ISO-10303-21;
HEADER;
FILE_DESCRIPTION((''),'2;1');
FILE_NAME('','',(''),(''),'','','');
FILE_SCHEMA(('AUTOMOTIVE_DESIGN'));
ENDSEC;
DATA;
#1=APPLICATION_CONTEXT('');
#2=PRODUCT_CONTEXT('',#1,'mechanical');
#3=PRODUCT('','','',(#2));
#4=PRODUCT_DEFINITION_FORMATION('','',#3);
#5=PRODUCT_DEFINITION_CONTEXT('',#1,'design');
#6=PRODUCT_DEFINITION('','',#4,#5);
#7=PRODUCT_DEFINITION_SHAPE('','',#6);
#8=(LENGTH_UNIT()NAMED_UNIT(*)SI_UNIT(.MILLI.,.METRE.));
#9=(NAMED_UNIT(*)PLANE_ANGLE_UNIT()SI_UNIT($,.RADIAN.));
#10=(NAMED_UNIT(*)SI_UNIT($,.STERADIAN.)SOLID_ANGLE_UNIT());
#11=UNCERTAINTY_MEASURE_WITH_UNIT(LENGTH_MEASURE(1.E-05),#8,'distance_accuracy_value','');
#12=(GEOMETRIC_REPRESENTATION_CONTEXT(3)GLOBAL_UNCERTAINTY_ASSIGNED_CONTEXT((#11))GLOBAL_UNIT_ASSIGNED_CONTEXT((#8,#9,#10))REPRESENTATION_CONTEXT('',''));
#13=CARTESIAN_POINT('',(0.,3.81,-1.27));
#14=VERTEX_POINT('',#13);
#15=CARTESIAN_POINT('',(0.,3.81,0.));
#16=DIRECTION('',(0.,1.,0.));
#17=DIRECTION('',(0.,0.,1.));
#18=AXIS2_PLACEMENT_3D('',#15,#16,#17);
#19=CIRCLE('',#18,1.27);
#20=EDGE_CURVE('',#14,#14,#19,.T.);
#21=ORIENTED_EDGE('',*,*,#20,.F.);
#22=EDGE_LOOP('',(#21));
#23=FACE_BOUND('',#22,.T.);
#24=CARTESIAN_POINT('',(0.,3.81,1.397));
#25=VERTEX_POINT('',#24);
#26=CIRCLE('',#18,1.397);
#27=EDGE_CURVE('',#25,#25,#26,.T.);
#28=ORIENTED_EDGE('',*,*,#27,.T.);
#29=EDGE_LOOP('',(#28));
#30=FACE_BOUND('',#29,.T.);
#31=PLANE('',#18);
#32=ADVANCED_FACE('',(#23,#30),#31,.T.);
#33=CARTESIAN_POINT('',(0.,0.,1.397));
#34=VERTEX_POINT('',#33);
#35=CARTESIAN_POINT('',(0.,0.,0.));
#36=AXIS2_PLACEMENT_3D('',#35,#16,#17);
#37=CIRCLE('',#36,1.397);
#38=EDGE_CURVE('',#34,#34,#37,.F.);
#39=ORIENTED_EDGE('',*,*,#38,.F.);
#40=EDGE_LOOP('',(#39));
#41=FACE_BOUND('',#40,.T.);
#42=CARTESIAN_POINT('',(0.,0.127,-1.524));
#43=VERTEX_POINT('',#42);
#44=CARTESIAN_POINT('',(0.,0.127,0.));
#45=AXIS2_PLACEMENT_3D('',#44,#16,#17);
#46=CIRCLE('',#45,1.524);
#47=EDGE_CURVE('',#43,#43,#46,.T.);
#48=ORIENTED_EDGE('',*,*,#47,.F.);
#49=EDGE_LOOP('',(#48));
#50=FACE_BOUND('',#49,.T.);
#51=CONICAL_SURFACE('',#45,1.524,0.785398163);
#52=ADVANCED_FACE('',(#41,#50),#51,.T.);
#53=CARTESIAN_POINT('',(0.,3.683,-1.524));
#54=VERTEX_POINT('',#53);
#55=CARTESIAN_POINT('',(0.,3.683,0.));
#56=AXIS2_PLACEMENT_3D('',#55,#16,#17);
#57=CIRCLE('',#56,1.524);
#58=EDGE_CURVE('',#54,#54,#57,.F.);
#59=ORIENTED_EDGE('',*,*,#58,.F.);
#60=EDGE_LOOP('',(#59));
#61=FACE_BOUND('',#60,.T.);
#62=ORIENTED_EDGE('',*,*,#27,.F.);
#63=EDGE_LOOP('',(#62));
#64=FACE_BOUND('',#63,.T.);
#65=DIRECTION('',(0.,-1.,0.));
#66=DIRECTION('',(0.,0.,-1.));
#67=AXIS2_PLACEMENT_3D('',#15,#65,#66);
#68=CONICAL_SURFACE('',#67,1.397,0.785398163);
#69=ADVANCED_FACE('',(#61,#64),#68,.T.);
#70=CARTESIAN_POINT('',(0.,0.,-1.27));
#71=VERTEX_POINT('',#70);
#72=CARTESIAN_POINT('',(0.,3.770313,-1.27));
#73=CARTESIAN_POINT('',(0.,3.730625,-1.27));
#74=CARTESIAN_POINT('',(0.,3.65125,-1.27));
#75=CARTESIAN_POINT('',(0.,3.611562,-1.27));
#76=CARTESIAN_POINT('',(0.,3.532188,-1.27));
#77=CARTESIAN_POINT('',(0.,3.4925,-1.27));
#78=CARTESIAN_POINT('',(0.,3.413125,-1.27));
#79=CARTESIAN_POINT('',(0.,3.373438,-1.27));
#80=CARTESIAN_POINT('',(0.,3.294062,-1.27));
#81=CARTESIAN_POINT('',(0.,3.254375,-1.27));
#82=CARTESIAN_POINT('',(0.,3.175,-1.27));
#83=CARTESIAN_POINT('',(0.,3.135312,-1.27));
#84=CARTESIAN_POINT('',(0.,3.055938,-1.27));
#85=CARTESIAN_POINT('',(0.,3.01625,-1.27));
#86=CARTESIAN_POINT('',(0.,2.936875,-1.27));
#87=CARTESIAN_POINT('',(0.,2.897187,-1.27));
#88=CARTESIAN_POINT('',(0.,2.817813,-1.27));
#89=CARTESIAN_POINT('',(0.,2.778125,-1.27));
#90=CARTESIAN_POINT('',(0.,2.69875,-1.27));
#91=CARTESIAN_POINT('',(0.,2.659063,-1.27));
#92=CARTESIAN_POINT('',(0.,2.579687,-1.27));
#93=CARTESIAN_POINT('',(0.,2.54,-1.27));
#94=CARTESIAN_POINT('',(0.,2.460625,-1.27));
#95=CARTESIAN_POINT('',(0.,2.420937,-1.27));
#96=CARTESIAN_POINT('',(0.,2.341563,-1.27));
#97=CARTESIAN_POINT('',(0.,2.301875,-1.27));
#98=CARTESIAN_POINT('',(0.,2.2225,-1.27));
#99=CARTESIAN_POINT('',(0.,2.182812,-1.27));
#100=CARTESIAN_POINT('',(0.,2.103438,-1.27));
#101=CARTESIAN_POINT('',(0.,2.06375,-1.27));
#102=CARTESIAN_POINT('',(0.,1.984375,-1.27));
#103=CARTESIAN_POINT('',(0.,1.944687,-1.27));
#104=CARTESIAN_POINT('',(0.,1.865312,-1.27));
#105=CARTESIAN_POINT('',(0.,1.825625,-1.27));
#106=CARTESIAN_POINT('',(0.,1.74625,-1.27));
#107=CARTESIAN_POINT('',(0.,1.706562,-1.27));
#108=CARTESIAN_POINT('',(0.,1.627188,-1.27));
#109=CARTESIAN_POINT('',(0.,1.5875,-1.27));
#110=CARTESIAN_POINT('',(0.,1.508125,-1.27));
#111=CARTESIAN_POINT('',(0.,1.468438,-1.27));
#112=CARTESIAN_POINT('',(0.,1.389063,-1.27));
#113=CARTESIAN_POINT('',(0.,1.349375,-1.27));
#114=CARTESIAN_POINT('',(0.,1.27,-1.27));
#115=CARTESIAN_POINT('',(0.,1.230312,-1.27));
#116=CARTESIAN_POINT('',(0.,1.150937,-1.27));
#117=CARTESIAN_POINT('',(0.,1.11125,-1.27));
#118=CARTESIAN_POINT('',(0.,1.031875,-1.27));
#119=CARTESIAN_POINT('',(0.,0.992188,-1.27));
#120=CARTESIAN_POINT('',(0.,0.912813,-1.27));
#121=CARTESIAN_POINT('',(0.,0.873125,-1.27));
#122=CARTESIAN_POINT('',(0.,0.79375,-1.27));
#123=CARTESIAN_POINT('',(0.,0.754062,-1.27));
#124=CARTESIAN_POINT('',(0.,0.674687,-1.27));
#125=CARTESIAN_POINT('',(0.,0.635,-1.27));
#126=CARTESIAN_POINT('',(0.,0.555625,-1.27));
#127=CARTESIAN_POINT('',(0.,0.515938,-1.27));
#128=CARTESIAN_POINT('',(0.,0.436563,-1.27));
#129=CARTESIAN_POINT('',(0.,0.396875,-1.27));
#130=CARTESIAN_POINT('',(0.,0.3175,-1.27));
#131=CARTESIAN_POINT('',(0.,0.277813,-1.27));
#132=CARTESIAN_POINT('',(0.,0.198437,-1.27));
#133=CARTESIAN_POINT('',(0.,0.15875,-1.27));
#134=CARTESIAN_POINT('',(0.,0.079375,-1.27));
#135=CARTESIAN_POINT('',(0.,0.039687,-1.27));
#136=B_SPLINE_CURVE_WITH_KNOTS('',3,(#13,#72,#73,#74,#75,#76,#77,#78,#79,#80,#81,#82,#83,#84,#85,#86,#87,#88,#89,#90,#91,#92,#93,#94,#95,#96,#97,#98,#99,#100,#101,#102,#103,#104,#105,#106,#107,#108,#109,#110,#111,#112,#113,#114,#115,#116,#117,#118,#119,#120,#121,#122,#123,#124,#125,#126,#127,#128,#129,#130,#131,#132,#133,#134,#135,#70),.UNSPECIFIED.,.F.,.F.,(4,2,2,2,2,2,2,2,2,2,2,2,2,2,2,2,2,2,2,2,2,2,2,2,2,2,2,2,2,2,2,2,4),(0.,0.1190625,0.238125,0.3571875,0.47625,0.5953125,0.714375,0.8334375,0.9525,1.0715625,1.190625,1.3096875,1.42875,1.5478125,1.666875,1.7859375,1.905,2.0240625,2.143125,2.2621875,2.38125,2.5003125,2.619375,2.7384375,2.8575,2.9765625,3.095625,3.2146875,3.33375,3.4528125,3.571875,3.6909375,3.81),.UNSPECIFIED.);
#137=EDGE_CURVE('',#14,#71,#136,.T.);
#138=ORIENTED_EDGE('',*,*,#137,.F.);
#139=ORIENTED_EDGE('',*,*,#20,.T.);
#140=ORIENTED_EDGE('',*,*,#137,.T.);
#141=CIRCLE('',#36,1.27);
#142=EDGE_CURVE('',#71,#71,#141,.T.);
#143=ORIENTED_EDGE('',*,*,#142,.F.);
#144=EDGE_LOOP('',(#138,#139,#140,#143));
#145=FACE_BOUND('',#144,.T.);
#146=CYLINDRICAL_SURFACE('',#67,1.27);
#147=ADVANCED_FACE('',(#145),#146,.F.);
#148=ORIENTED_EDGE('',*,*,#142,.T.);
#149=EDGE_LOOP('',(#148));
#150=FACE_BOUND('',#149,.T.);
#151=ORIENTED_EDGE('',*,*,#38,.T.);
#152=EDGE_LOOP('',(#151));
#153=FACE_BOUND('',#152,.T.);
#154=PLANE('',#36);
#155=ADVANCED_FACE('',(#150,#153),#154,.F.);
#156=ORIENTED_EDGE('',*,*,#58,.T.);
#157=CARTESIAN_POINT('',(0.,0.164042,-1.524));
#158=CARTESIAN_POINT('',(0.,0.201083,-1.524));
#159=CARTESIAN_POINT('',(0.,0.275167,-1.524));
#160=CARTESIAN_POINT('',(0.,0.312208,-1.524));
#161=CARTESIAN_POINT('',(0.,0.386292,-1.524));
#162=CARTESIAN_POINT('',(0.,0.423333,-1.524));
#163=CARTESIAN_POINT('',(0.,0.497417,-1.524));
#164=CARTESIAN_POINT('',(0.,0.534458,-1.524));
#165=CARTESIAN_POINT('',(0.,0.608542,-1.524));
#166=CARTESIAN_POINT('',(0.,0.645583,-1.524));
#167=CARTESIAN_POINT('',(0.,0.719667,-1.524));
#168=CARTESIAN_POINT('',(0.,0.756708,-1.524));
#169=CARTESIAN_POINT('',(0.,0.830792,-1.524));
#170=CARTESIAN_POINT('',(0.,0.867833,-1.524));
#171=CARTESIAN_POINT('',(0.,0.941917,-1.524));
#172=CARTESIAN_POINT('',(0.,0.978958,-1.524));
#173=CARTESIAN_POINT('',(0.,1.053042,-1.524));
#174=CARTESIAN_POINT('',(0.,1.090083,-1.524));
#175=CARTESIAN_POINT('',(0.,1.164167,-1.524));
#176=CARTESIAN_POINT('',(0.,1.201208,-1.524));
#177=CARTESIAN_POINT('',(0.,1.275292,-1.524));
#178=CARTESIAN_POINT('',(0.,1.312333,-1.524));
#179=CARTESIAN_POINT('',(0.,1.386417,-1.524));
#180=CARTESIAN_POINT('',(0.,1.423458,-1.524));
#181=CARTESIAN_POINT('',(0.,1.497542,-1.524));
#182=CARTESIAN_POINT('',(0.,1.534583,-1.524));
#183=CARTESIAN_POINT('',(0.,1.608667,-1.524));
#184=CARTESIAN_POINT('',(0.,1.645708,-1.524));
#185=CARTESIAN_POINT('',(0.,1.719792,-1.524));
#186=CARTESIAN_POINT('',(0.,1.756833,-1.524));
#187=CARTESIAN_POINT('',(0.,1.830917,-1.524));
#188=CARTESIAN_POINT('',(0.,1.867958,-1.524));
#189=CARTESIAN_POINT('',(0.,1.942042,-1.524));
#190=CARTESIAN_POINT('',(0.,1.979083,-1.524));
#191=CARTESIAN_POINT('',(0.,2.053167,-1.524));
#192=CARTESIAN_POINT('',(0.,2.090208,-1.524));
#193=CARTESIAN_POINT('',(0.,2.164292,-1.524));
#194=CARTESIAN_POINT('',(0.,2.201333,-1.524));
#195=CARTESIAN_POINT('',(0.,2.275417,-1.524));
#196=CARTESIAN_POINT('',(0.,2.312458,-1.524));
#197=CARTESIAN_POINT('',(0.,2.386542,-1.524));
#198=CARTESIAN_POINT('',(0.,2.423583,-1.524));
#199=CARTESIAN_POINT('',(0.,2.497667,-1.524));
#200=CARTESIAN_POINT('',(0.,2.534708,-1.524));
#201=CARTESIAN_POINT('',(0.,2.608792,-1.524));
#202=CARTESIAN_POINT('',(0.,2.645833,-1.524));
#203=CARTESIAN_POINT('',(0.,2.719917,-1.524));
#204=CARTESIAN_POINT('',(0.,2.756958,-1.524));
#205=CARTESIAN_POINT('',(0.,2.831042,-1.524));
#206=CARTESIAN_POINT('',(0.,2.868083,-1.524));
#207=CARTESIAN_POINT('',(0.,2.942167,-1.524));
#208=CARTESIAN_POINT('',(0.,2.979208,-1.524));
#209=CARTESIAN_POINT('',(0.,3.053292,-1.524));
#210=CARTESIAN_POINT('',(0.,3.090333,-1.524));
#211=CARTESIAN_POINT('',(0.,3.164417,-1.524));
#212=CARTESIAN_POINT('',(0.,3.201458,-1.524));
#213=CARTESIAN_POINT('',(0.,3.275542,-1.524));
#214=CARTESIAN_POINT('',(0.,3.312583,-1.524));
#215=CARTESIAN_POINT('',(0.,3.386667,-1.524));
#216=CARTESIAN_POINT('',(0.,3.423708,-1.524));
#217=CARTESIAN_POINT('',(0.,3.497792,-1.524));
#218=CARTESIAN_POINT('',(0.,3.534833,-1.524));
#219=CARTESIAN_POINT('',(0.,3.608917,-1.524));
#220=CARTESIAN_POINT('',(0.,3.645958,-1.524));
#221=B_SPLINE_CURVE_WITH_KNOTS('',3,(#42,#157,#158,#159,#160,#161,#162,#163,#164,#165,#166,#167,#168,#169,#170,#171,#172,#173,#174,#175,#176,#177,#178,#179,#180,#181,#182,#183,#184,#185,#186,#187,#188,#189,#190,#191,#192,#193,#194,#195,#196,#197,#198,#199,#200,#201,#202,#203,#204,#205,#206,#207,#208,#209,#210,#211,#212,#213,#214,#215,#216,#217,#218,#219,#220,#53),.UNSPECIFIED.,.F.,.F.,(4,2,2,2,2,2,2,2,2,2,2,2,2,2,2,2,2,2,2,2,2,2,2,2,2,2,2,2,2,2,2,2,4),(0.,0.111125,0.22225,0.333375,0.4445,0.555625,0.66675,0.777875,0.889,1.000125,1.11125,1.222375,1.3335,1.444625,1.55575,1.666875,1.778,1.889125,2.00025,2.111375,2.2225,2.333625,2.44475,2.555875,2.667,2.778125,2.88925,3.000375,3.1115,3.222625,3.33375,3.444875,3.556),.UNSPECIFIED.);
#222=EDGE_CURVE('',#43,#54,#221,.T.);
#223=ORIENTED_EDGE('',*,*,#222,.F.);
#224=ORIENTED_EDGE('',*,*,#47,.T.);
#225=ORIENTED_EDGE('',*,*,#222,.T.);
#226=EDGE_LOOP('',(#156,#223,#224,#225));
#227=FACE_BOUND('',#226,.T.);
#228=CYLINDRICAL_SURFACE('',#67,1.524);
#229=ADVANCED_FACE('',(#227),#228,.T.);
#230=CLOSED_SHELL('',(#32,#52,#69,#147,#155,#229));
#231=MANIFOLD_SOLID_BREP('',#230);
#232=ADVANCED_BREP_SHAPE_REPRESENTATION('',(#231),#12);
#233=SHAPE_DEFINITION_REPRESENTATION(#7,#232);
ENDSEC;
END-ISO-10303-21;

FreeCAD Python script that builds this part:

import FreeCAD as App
import Part
import Sketcher
from FreeCAD import Vector
Q = App.Units.Quantity


def edges_at(feature, points):
    """Names of the edges that pass closest to the given points."""
    edges = feature.Shape.Edges
    near = lambda p: min(range(len(edges)), key=lambda i: edges[i].distToShape(Part.Vertex(*p))[0])
    return sorted({f"Edge{near(p) + 1}" for p in points})

doc = App.newDocument("Part")
body = doc.addObject("PartDesign::Body", "Body")

sketch1 = body.newObject("Sketcher::SketchObject", "Sketch")
sketch1.AttachmentSupport = (doc.getObject("XZ_Plane"), [""])
sketch1.MapMode = "FlatFace"
sketch1.addGeometry(Part.Circle(Vector(0, 0, 0), Vector(0, 0, 1), 1.5), False)
sketch1.addGeometry(Part.Circle(Vector(0, 0, 0), Vector(0, 0, 1), 1.3), False)
sketch1.addConstraint(Sketcher.Constraint("Coincident", 0, 3, -1, 1))
sketch1.addConstraint(Sketcher.Constraint("Coincident", 1, 3, -1, 1))
sketch1.addConstraint(Sketcher.Constraint("Diameter", 1, Q("0.1 in")))
sketch1.addConstraint(Sketcher.Constraint("Diameter", 0, Q("0.12 in")))
pad1 = body.newObject("PartDesign::Pad", "Pad")
pad1.Profile = sketch1
pad1.Length = Q("0.15 in")
pad1.Reversed = True
doc.recompute()

chamfer = body.newObject("PartDesign::Chamfer", "Chamfer")
chamfer.Base = (pad1, edges_at(pad1, [(0, 0, 1.524), (0, 3.81, 1.524)]))
chamfer.Size = Q("0.005 in")

doc.recompute()
